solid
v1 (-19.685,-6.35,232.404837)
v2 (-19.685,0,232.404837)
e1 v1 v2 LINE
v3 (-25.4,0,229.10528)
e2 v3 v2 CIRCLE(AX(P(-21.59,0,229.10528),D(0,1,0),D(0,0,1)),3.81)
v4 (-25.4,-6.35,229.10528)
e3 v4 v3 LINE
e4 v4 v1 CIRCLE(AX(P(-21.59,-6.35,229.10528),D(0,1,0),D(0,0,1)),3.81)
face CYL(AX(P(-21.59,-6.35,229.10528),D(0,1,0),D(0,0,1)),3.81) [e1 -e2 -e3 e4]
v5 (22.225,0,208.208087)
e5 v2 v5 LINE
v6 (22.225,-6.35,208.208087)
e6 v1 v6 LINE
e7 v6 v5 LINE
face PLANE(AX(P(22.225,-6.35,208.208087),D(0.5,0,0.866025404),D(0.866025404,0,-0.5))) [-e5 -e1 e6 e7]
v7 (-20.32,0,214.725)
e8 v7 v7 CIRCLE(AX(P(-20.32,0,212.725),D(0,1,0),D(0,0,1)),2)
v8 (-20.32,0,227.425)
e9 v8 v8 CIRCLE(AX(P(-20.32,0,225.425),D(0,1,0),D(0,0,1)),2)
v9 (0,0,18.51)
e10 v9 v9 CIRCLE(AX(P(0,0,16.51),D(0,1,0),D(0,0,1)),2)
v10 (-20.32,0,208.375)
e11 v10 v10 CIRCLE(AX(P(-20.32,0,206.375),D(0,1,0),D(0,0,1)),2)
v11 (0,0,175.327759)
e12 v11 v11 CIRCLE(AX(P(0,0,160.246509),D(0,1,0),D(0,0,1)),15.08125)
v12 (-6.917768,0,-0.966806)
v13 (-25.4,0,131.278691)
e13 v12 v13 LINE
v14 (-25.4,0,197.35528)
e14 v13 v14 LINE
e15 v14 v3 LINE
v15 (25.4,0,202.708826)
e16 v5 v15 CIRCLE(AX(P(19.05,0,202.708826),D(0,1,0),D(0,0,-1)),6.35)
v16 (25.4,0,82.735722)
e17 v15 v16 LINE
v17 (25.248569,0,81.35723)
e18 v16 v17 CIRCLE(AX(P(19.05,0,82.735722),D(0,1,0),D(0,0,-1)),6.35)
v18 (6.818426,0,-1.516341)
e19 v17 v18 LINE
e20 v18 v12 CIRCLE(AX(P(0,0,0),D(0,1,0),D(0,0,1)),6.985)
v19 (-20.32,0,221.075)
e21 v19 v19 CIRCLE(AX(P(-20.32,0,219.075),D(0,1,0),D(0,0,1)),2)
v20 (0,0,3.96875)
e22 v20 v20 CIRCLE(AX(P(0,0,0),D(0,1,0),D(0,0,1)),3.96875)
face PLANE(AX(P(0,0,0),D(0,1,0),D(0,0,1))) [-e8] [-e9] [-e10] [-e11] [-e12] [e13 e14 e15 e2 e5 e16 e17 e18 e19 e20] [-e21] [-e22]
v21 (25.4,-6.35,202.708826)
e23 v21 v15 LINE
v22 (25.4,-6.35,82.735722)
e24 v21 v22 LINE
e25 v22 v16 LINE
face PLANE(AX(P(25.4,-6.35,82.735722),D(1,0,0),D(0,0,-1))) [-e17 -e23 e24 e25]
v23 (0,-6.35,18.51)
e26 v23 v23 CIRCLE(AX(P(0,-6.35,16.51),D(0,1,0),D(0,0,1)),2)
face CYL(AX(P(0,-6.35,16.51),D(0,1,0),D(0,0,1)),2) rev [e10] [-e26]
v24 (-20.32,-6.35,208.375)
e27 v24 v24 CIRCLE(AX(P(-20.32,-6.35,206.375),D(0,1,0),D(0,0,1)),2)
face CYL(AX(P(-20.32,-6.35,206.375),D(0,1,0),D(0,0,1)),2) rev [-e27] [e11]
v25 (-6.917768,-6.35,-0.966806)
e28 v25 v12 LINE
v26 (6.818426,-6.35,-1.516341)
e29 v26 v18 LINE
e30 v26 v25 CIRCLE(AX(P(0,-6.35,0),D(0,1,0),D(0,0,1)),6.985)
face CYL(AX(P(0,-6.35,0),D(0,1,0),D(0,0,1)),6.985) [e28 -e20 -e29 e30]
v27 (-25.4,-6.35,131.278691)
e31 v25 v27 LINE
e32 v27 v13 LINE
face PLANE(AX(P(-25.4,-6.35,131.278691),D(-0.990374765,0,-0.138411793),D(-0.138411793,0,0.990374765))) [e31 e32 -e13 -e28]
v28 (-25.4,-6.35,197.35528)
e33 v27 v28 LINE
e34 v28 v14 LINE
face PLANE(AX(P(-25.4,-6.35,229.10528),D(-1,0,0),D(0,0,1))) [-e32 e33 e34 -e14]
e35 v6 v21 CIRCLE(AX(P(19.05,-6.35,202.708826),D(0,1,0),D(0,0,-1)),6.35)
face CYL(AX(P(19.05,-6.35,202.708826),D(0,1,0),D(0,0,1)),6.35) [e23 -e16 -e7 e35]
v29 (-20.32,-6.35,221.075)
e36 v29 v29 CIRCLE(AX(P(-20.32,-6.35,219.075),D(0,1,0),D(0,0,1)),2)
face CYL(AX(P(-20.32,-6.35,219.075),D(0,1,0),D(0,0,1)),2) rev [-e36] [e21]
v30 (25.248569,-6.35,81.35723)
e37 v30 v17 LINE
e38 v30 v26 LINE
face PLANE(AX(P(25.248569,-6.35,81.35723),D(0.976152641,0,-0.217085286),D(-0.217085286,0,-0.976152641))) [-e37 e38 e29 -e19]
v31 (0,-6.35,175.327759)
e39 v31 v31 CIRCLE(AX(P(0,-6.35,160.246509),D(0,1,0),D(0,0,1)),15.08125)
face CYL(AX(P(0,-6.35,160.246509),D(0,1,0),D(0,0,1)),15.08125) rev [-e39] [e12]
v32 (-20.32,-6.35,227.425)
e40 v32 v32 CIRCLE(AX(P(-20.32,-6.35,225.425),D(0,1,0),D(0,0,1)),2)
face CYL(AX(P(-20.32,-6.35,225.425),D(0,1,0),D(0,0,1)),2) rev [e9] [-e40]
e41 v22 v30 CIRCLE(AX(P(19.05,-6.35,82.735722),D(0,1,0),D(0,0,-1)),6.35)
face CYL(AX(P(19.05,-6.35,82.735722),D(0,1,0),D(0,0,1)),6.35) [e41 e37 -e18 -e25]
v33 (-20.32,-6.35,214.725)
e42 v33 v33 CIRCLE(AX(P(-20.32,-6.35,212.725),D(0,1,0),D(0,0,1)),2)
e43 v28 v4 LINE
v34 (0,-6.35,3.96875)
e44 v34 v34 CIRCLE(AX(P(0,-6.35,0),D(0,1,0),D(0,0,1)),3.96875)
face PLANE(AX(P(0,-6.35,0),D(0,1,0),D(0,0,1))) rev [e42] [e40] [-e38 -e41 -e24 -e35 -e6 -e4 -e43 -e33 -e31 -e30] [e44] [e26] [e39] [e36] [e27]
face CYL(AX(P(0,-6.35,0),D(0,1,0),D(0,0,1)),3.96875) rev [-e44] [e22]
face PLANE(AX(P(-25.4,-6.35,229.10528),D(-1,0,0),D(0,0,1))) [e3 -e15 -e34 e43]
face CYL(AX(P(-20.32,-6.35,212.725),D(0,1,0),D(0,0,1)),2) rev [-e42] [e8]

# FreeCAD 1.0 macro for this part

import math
import FreeCAD as App
import Part
import Sketcher
Q = App.Units.Quantity

doc = App.newDocument("Part")
body = doc.addObject("PartDesign::Body", "Body")

sketch1 = doc.addObject("Sketcher::SketchObject", "Sketch")
body.addObject(sketch1)
sketch1.AttachmentSupport = (doc.XZ_Plane, [""])
sketch1.MapMode = "FlatFace"
sketch1.addGeometry([
    Part.LineSegment(App.Vector(25.4, 202.708826, 0), App.Vector(25.4, 82.735722, 0)),
    Part.ArcOfCircle(Part.Circle(App.Vector(19.05, 82.735722, 0), App.Vector(0, 0, 1), 6.35), math.radians(-12.537895), math.radians(0)),
    Part.LineSegment(App.Vector(25.248569, 81.35723, 0), App.Vector(6.818426, -1.516341, 0)),
    Part.ArcOfCircle(Part.Circle(App.Vector(0, 0, 0), App.Vector(0, 0, 1), 6.985), math.radians(-172.044046), math.radians(-12.537895)),
    Part.LineSegment(App.Vector(-6.917768, -0.966806, 0), App.Vector(-25.4, 131.278691, 0)),
    Part.LineSegment(App.Vector(-25.4, 131.278691, 0), App.Vector(-25.4, 229.10528, 0)),
    Part.ArcOfCircle(Part.Circle(App.Vector(-21.59, 229.10528, 0), App.Vector(0, 0, 1), 3.81), math.radians(60), math.radians(180)),
    Part.LineSegment(App.Vector(-19.685, 232.404837, 0), App.Vector(22.225, 208.208087, 0)),
    Part.ArcOfCircle(Part.Circle(App.Vector(19.05, 202.708826, 0), App.Vector(0, 0, 1), 6.35), math.radians(0), math.radians(60)),
    Part.Circle(App.Vector(0, 160.246509, 0), App.Vector(0, 0, 1), 15.08125),
    Part.Circle(App.Vector(-20.32, 225.425, 0), App.Vector(0, 0, 1), 2),
    Part.Circle(App.Vector(-20.32, 219.075, 0), App.Vector(0, 0, 1), 2),
    Part.Circle(App.Vector(-20.32, 212.725, 0), App.Vector(0, 0, 1), 2),
    Part.Circle(App.Vector(-20.32, 206.375, 0), App.Vector(0, 0, 1), 2),
    Part.Circle(App.Vector(0, 16.51, 0), App.Vector(0, 0, 1), 2),
    Part.Circle(App.Vector(0, 0, 0), App.Vector(0, 0, 1), 3.96875),
], False)
sketch1.addConstraint([
    Sketcher.Constraint("Tangent", 0, 2, 1, 2),
    Sketcher.Constraint("Tangent", 1, 1, 2, 1),
    Sketcher.Constraint("Tangent", 2, 2, 3, 2),
    Sketcher.Constraint("Tangent", 3, 1, 4, 1),
    Sketcher.Constraint("Coincident", 4, 2, 5, 1),
    Sketcher.Constraint("Tangent", 5, 2, 6, 2),
    Sketcher.Constraint("Tangent", 6, 1, 7, 1),
    Sketcher.Constraint("Tangent", 7, 2, 8, 2),
    Sketcher.Constraint("Tangent", 8, 1, 0, 1),
    Sketcher.Constraint("Vertical", 0),
    Sketcher.Constraint("Vertical", 5),
    Sketcher.Constraint("Coincident", 3, 3, -1, 1),
    Sketcher.Constraint("Coincident", 15, 3, -1, 1),
    Sketcher.Constraint("Equal", 1, 8),
    Sketcher.Constraint("Equal", 10, 11),
    Sketcher.Constraint("Equal", 11, 12),
    Sketcher.Constraint("Equal", 12, 13),
    Sketcher.Constraint("Equal", 13, 14),
    Sketcher.Constraint("PointOnObject", 9, 3, -2),
    Sketcher.Constraint("PointOnObject", 14, 3, -2),
    Sketcher.Constraint("Vertical", 10, 3, 11, 3),
    Sketcher.Constraint("Vertical", 11, 3, 12, 3),
    Sketcher.Constraint("Vertical", 12, 3, 13, 3),
    Sketcher.Constraint("Radius", 1, Q("0.25 in")),
    Sketcher.Constraint("Radius", 6, Q("0.15 in")),
    Sketcher.Constraint("Diameter", 9, Q("1.1875 in")),
    Sketcher.Constraint("Diameter", 15, Q("0.3125 in")),
    Sketcher.Constraint("DistanceX", -1, 1, 0, 2, Q("1 in")),
    Sketcher.Constraint("DistanceX", 4, 2, -1, 1, Q("1 in")),
    Sketcher.Constraint("Angle", 7, Q("-30 deg")),
    Sketcher.Constraint("Radius", 3, Q("0.275 in")),
    Sketcher.Constraint("DistanceX", 10, 3, -1, 1, Q("0.8 in")),
    Sketcher.Constraint("DistanceY", 12, 3, 10, 3, Q("0.5 in")),
    Sketcher.Constraint("DistanceY", 13, 3, 11, 3, Q("0.5 in")),
    Sketcher.Constraint("Diameter", 10, 4.0),
    Sketcher.Constraint("DistanceY", -1, 1, 14, 3, Q("0.65 in")),
    Sketcher.Constraint("DistanceY", 11, 3, 10, 3, Q("0.25 in")),
    Sketcher.Constraint("DistanceY", -1, 1, 10, 3, Q("8.875 in")),
    Sketcher.Constraint("DistanceY", 5, 1, 5, 2, 97.826589),
    Sketcher.Constraint("Distance", 2, 84.898168),
    Sketcher.Constraint("DistanceY", 0, 2, 0, 1, 119.973104),
    Sketcher.Constraint("DistanceY", -1, 1, 9, 3, 160.246509),
])
pad1 = doc.addObject("PartDesign::Pad", "Pad")
body.addObject(pad1)
pad1.Profile = sketch1
pad1.Length = Q("0.25 in")

doc.recompute()
